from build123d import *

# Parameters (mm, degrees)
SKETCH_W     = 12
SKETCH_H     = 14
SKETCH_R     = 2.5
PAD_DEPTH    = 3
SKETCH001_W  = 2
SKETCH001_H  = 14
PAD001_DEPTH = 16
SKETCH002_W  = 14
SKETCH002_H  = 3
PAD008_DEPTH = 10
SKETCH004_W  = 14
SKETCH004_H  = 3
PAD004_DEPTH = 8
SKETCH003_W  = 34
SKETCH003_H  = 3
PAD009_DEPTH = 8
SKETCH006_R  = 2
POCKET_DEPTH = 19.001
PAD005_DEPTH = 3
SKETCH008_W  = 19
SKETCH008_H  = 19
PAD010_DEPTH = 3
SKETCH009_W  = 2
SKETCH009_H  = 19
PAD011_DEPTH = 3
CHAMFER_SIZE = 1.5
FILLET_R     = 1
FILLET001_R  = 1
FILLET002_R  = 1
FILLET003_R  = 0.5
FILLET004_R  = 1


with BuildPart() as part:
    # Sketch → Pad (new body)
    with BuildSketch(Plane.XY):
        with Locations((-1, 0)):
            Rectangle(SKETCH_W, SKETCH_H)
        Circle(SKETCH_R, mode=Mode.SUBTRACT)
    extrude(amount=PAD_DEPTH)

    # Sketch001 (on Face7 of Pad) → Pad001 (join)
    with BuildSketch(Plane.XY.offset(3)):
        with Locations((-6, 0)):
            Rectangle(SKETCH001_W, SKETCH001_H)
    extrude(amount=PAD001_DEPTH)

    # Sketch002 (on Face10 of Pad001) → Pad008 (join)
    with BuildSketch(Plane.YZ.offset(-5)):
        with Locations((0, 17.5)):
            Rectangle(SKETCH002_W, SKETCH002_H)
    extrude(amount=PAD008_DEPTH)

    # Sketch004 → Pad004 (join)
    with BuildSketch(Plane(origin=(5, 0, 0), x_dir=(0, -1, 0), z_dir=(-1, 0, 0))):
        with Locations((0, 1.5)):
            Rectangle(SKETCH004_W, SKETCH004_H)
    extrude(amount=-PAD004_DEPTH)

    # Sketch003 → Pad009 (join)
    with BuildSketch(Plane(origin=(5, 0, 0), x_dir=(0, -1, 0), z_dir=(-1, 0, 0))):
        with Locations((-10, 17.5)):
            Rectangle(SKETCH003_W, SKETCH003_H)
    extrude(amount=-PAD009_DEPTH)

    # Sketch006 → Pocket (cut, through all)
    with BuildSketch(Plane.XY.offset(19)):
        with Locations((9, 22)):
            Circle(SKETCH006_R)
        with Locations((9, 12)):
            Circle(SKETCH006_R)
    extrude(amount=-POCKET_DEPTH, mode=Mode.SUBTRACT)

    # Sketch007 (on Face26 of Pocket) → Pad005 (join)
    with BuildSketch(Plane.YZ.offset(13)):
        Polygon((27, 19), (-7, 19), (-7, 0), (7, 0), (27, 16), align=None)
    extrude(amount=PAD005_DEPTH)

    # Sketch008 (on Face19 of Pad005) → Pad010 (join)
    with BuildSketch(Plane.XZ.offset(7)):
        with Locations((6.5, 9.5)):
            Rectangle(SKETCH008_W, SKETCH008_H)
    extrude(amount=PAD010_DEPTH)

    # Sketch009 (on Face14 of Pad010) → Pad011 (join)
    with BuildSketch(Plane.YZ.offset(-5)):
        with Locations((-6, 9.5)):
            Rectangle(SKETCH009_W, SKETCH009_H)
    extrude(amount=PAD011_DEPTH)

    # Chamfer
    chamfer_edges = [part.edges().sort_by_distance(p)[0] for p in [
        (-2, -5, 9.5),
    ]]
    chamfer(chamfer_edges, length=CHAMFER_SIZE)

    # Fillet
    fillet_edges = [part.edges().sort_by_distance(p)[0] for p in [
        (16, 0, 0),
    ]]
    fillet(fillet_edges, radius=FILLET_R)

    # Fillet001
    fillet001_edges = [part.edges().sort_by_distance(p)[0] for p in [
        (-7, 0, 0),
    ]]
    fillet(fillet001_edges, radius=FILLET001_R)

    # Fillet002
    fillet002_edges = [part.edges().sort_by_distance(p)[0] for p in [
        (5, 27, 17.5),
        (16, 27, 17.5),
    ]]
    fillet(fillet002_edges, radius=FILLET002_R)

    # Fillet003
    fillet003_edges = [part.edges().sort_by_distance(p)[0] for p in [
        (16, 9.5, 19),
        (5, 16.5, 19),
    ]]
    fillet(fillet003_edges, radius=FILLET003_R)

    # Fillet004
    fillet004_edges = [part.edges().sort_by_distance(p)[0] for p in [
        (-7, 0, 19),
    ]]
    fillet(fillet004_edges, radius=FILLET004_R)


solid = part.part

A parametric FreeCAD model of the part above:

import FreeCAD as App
import Part
import Sketcher
from FreeCAD import Vector
Q = App.Units.Quantity


def edges_at(feature, points):
    """Names of the edges that pass closest to the given points."""
    edges = feature.Shape.Edges
    near = lambda p: min(range(len(edges)), key=lambda i: edges[i].distToShape(Part.Vertex(*p))[0])
    return sorted({f"Edge{near(p) + 1}" for p in points})


def add_polygon(sketch, points):
    """Adds a closed chain of lines whose ends are joined by coincident constraints."""
    first, n = sketch.GeometryCount, len(points)
    for a, b in zip(points, points[1:] + points[:1]):
        sketch.addGeometry(Part.LineSegment(App.Vector(*a, 0), App.Vector(*b, 0)), False)
    for i in range(n):
        sketch.addConstraint(Sketcher.Constraint("Coincident", first + i, 2, first + (i + 1) % n, 1))

doc = App.newDocument("Part")
params = doc.addObject("Spreadsheet::Sheet", "Params")
for row, (alias, value) in enumerate([
    ("sketch1_diameter", "5 mm"),
    ("sketch1_width", "12 mm"),
    ("sketch1_height", "14 mm"),
    ("pad1_length", "3 mm"),
    ("sketch2_width", "2 mm"),
    ("sketch2_height", "14 mm"),
    ("pad2_length", "16 mm"),
    ("sketch3_width", "14 mm"),
    ("sketch3_height", "3 mm"),
    ("pad3_length", "10 mm"),
    ("sketch4_width", "14 mm"),
    ("sketch4_height", "3 mm"),
    ("pad4_length", "8 mm"),
    ("sketch5_width", "34 mm"),
    ("sketch5_height", "3 mm"),
    ("pad5_length", "8 mm"),
    ("sketch6_diameter", "4 mm"),
    ("sketch7_width", "34 mm"),
    ("sketch7_width2", "14 mm"),
    ("sketch7_height", "19 mm"),
    ("sketch7_height2", "3 mm"),
    ("pad6_length", "3 mm"),
    ("sketch8_width", "19 mm"),
    ("pad7_length", "3 mm"),
    ("sketch9_width", "2 mm"),
    ("sketch9_height", "19 mm"),
    ("pad8_length", "3 mm"),
    ("chamfer_size", "1.5 mm"),
    ("fillet_radius", "1 mm"),
    ("fillet2_radius", "1 mm"),
    ("fillet3_radius", "1 mm"),
    ("fillet4_radius", "0.5 mm"),
    ("fillet5_radius", "1 mm"),
], start=1):
    params.set(f"A{row}", alias)
    params.set(f"B{row}", "=" + value)
    params.setAlias(f"B{row}", alias)

body = doc.addObject("PartDesign::Body", "Body")

# Sketch on XY plane
sketch1 = doc.addObject("Sketcher::SketchObject", "Sketch")
body.addObject(sketch1)
sketch1.AttachmentSupport = (doc.XY_Plane, [""])
sketch1.MapMode = "FlatFace"
add_polygon(sketch1, [(-7, 7), (-7, -7), (5, -7), (5, 7)])  # lines 0-3
sketch1.addGeometry(Part.Circle(Vector(0, 0, 0), Vector(0, 0, 1), 2.5), False)  # 4
sketch1.addConstraint([
    Sketcher.Constraint("Vertical", 0),
    Sketcher.Constraint("Horizontal", 1),
    Sketcher.Constraint("Vertical", 2),
    Sketcher.Constraint("Horizontal", 3),
    Sketcher.Constraint("Coincident", 4, 3, -1, 1),
    Sketcher.Constraint("Diameter", 4, Q("5 mm")),
    Sketcher.Constraint("DistanceX", 1, 1, 1, 2, Q("12 mm")),
    Sketcher.Constraint("DistanceY", 0, 2, 0, 1, Q("14 mm")),
    Sketcher.Constraint("DistanceX", 0, 2, -1, 1, Q("7 mm")),
    Sketcher.Constraint("DistanceY", 0, 2, -1, 1, Q("7 mm")),
])
sketch1.setExpression("Constraints[9]", "Params.sketch1_diameter")
sketch1.setExpression("Constraints[10]", "Params.sketch1_width")
sketch1.setExpression("Constraints[11]", "Params.sketch1_height")
pad1 = doc.addObject("PartDesign::Pad", "Pad")
body.addObject(pad1)
pad1.Profile = sketch1
pad1.setExpression("Length", "Params.pad1_length")

# Sketch on XY plane
sketch2 = doc.addObject("Sketcher::SketchObject", "Sketch001")
body.addObject(sketch2)
sketch2.AttachmentSupport = (doc.XY_Plane, [""])
sketch2.MapMode = "FlatFace"
sketch2.AttachmentOffset = App.Placement(Vector(0, 0, 3), App.Rotation())
add_polygon(sketch2, [(-7, 7), (-7, -7), (-5, -7), (-5, 7)])  # lines 0-3
sketch2.addConstraint([
    Sketcher.Constraint("Vertical", 0),
    Sketcher.Constraint("Horizontal", 1),
    Sketcher.Constraint("Vertical", 2),
    Sketcher.Constraint("Horizontal", 3),
    Sketcher.Constraint("DistanceX", 1, 1, 1, 2, Q("2 mm")),
    Sketcher.Constraint("DistanceY", 0, 2, 0, 1, Q("14 mm")),
    Sketcher.Constraint("DistanceX", 0, 2, -1, 1, Q("7 mm")),
    Sketcher.Constraint("DistanceY", 0, 2, -1, 1, Q("7 mm")),
])
sketch2.setExpression("Constraints[8]", "Params.sketch2_width")
sketch2.setExpression("Constraints[9]", "Params.sketch2_height")
pad2 = doc.addObject("PartDesign::Pad", "Pad001")
body.addObject(pad2)
pad2.Profile = sketch2
pad2.setExpression("Length", "Params.pad2_length")

# Sketch on YZ plane
sketch3 = doc.addObject("Sketcher::SketchObject", "Sketch002")
body.addObject(sketch3)
sketch3.AttachmentSupport = (doc.YZ_Plane, [""])
sketch3.MapMode = "FlatFace"
sketch3.AttachmentOffset = App.Placement(Vector(0, 0, -5), App.Rotation())
add_polygon(sketch3, [(-7, 19), (-7, 16), (7, 16), (7, 19)])  # lines 0-3
sketch3.addConstraint([
    Sketcher.Constraint("Vertical", 0),
    Sketcher.Constraint("Horizontal", 1),
    Sketcher.Constraint("Vertical", 2),
    Sketcher.Constraint("Horizontal", 3),
    Sketcher.Constraint("DistanceX", 1, 1, 1, 2, Q("14 mm")),
    Sketcher.Constraint("DistanceY", 0, 2, 0, 1, Q("3 mm")),
    Sketcher.Constraint("DistanceX", 0, 2, -1, 1, Q("7 mm")),
    Sketcher.Constraint("DistanceY", -1, 1, 0, 2, Q("16 mm")),
])
sketch3.setExpression("Constraints[8]", "Params.sketch3_width")
sketch3.setExpression("Constraints[9]", "Params.sketch3_height")
pad3 = doc.addObject("PartDesign::Pad", "Pad002")
body.addObject(pad3)
pad3.Profile = sketch3
pad3.setExpression("Length", "Params.pad3_length")

# Sketch on YZ plane
sketch4 = doc.addObject("Sketcher::SketchObject", "Sketch003")
body.addObject(sketch4)
sketch4.AttachmentSupport = (doc.YZ_Plane, [""])
sketch4.MapMode = "FlatFace"
sketch4.AttachmentOffset = App.Placement(Vector(0, 0, 5), App.Rotation())
add_polygon(sketch4, [(7, 3), (7, 0), (-7, 0), (-7, 3)])  # lines 0-3
sketch4.addConstraint([
    Sketcher.Constraint("Vertical", 0),
    Sketcher.Constraint("Horizontal", 1),
    Sketcher.Constraint("Vertical", 2),
    Sketcher.Constraint("Horizontal", 3),
    Sketcher.Constraint("Symmetric", 0, 2, 1, 2, -1, 1),
    Sketcher.Constraint("DistanceX", 1, 2, 1, 1, Q("14 mm")),
    Sketcher.Constraint("DistanceY", 0, 2, 0, 1, Q("3 mm")),
])
sketch4.setExpression("Constraints[9]", "Params.sketch4_width")
sketch4.setExpression("Constraints[10]", "Params.sketch4_height")
pad4 = doc.addObject("PartDesign::Pad", "Pad003")
body.addObject(pad4)
pad4.Profile = sketch4
pad4.setExpression("Length", "Params.pad4_length")

# Sketch on YZ plane
sketch5 = doc.addObject("Sketcher::SketchObject", "Sketch004")
body.addObject(sketch5)
sketch5.AttachmentSupport = (doc.YZ_Plane, [""])
sketch5.MapMode = "FlatFace"
sketch5.AttachmentOffset = App.Placement(Vector(0, 0, 5), App.Rotation())
add_polygon(sketch5, [(27, 19), (27, 16), (-7, 16), (-7, 19)])  # lines 0-3
sketch5.addConstraint([
    Sketcher.Constraint("Vertical", 0),
    Sketcher.Constraint("Horizontal", 1),
    Sketcher.Constraint("Vertical", 2),
    Sketcher.Constraint("Horizontal", 3),
    Sketcher.Constraint("DistanceX", 1, 2, 1, 1, Q("34 mm")),
    Sketcher.Constraint("DistanceY", 0, 2, 0, 1, Q("3 mm")),
    Sketcher.Constraint("DistanceX", -1, 1, 0, 2, Q("27 mm")),
    Sketcher.Constraint("DistanceY", -1, 1, 0, 2, Q("16 mm")),
])
sketch5.setExpression("Constraints[8]", "Params.sketch5_width")
sketch5.setExpression("Constraints[9]", "Params.sketch5_height")
pad5 = doc.addObject("PartDesign::Pad", "Pad004")
body.addObject(pad5)
pad5.Profile = sketch5
pad5.setExpression("Length", "Params.pad5_length")

# Sketch on XY plane
sketch6 = doc.addObject("Sketcher::SketchObject", "Sketch005")
body.addObject(sketch6)
sketch6.AttachmentSupport = (doc.XY_Plane, [""])
sketch6.MapMode = "FlatFace"
sketch6.AttachmentOffset = App.Placement(Vector(0, 0, 19), App.Rotation())
sketch6.addGeometry([
    Part.Circle(Vector(9, 22, 0), Vector(0, 0, 1), 2),
    Part.Circle(Vector(9, 12, 0), Vector(0, 0, 1), 2),
], False)
sketch6.addConstraint([
    Sketcher.Constraint("Equal", 0, 1),
    Sketcher.Constraint("Vertical", 0, 3, 1, 3),
    Sketcher.Constraint("Diameter", 0, Q("4 mm")),
    Sketcher.Constraint("DistanceX", -1, 1, 0, 3, Q("9 mm")),
    Sketcher.Constraint("DistanceY", -1, 1, 0, 3, Q("22 mm")),
    Sketcher.Constraint("DistanceY", -1, 1, 1, 3, Q("12 mm")),
])
sketch6.setExpression("Constraints[2]", "Params.sketch6_diameter")
pocket1 = doc.addObject("PartDesign::Pocket", "Pocket")
body.addObject(pocket1)
pocket1.Profile = sketch6
pocket1.Type = "ThroughAll"

# Sketch on YZ plane
sketch7 = doc.addObject("Sketcher::SketchObject", "Sketch006")
body.addObject(sketch7)
sketch7.AttachmentSupport = (doc.YZ_Plane, [""])
sketch7.MapMode = "FlatFace"
sketch7.AttachmentOffset = App.Placement(Vector(0, 0, 13), App.Rotation())
add_polygon(sketch7, [(27, 19), (-7, 19), (-7, 0), (7, 0), (27, 16)])  # lines 0-4
sketch7.addConstraint([
    Sketcher.Constraint("Horizontal", 0),
    Sketcher.Constraint("Vertical", 1),
    Sketcher.Constraint("Horizontal", 2),
    Sketcher.Constraint("Vertical", 4),
    Sketcher.Constraint("Symmetric", 1, 2, 2, 2, -1, 1),
    Sketcher.Constraint("DistanceX", 0, 2, 0, 1, Q("34 mm")),
    Sketcher.Constraint("DistanceX", 2, 1, 2, 2, Q("14 mm")),
    Sketcher.Constraint("DistanceY", 1, 2, 1, 1, Q("19 mm")),
    Sketcher.Constraint("DistanceY", 4, 1, 4, 2, Q("3 mm")),
])
sketch7.setExpression("Constraints[10]", "Params.sketch7_width")
sketch7.setExpression("Constraints[11]", "Params.sketch7_width2")
sketch7.setExpression("Constraints[12]", "Params.sketch7_height")
sketch7.setExpression("Constraints[13]", "Params.sketch7_height2")
pad6 = doc.addObject("PartDesign::Pad", "Pad005")
body.addObject(pad6)
pad6.Profile = sketch7
pad6.setExpression("Length", "Params.pad6_length")

# Sketch on XZ plane
sketch8 = doc.addObject("Sketcher::SketchObject", "Sketch007")
body.addObject(sketch8)
sketch8.AttachmentSupport = (doc.XZ_Plane, [""])
sketch8.MapMode = "FlatFace"
sketch8.AttachmentOffset = App.Placement(Vector(0, 0, 7), App.Rotation())
add_polygon(sketch8, [(-3, 19), (-3, 0), (16, 0), (16, 19)])  # lines 0-3
sketch8.addConstraint([
    Sketcher.Constraint("Vertical", 0),
    Sketcher.Constraint("Horizontal", 1),
    Sketcher.Constraint("Vertical", 2),
    Sketcher.Constraint("Horizontal", 3),
    Sketcher.Constraint("PointOnObject", 0, 2, -1),
    Sketcher.Constraint("Equal", 3, 0),
    Sketcher.Constraint("DistanceX", 1, 1, 1, 2, Q("19 mm")),
    Sketcher.Constraint("DistanceX", 0, 2, -1, 1, Q("3 mm")),
])
sketch8.setExpression("Constraints[10]", "Params.sketch8_width")
pad7 = doc.addObject("PartDesign::Pad", "Pad006")
body.addObject(pad7)
pad7.Profile = sketch8
pad7.setExpression("Length", "Params.pad7_length")

# Sketch on YZ plane
sketch9 = doc.addObject("Sketcher::SketchObject", "Sketch008")
body.addObject(sketch9)
sketch9.AttachmentSupport = (doc.YZ_Plane, [""])
sketch9.MapMode = "FlatFace"
sketch9.AttachmentOffset = App.Placement(Vector(0, 0, -5), App.Rotation())
add_polygon(sketch9, [(-7, 19), (-7, 0), (-5, 0), (-5, 19)])  # lines 0-3
sketch9.addConstraint([
    Sketcher.Constraint("Vertical", 0),
    Sketcher.Constraint("Horizontal", 1),
    Sketcher.Constraint("Vertical", 2),
    Sketcher.Constraint("Horizontal", 3),
    Sketcher.Constraint("PointOnObject", 0, 2, -1),
    Sketcher.Constraint("DistanceX", 1, 1, 1, 2, Q("2 mm")),
    Sketcher.Constraint("DistanceY", 0, 2, 0, 1, Q("19 mm")),
    Sketcher.Constraint("DistanceX", 0, 2, -1, 1, Q("7 mm")),
])
sketch9.setExpression("Constraints[9]", "Params.sketch9_width")
sketch9.setExpression("Constraints[10]", "Params.sketch9_height")
pad8 = doc.addObject("PartDesign::Pad", "Pad007")
body.addObject(pad8)
pad8.Profile = sketch9
pad8.setExpression("Length", "Params.pad8_length")
doc.recompute()

chamfer = doc.addObject("PartDesign::Chamfer", "Chamfer")
body.addObject(chamfer)
chamfer.Base = (pad8, edges_at(pad8, [(-2, -5, 9.5)]))
chamfer.setExpression("Size", "Params.chamfer_size")
doc.recompute()

fillet = doc.addObject("PartDesign::Fillet", "Fillet")
body.addObject(fillet)
fillet.Base = (chamfer, edges_at(chamfer, [(16, -1.5, 0)]))
fillet.setExpression("Radius", "Params.fillet_radius")
doc.recompute()

fillet2 = doc.addObject("PartDesign::Fillet", "Fillet001")
body.addObject(fillet2)
fillet2.Base = (fillet, edges_at(fillet, [(-7, 0, 0)]))
fillet2.setExpression("Radius", "Params.fillet2_radius")
doc.recompute()

fillet3 = doc.addObject("PartDesign::Fillet", "Fillet002")
body.addObject(fillet3)
fillet3.Base = (fillet2, edges_at(fillet2, [(5, 27, 17.5), (16, 27, 17.5)]))
fillet3.setExpression("Radius", "Params.fillet3_radius")
doc.recompute()

fillet4 = doc.addObject("PartDesign::Fillet", "Fillet003")
body.addObject(fillet4)
fillet4.Base = (fillet3, edges_at(fillet3, [(16, 8, 19), (5, 16.5, 19)]))
fillet4.setExpression("Radius", "Params.fillet4_radius")
doc.recompute()

fillet5 = doc.addObject("PartDesign::Fillet", "Fillet004")
body.addObject(fillet5)
fillet5.Base = (fillet4, edges_at(fillet4, [(-7, 0, 19)]))
fillet5.setExpression("Radius", "Params.fillet5_radius")

doc.recompute()
